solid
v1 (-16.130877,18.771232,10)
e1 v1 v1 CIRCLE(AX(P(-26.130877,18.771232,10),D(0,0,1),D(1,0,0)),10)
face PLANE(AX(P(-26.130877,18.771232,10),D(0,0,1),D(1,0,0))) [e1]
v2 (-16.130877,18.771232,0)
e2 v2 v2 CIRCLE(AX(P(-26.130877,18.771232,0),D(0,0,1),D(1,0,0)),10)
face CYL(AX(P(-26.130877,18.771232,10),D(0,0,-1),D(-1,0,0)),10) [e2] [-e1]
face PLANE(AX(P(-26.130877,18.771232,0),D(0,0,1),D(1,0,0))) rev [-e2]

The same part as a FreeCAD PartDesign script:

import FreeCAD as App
import Part
import Sketcher

doc = App.newDocument("Part")
body = doc.addObject("PartDesign::Body", "Body")

# Sketch on XY plane
sketch1 = body.newObject("Sketcher::SketchObject", "Sketch")
sketch1.AttachmentSupport = (doc.getObject("XY_Plane"), [""])
sketch1.MapMode = "FlatFace"
sketch1.addGeometry(Part.Circle(App.Vector(-26, 19, 0), App.Vector(0, 0, 1), 10), False)
sketch1.addConstraint([
    Sketcher.Constraint("Diameter", 0, 20.0),
    Sketcher.Constraint("DistanceY", -1, 1, 0, 3, 18.771232),
    Sketcher.Constraint("DistanceX", 0, 3, -1, 1, 26.130877),
])
pad1 = body.newObject("PartDesign::Pad", "Pad")
pad1.Profile = sketch1
pad1.Length = 10

doc.recompute()
